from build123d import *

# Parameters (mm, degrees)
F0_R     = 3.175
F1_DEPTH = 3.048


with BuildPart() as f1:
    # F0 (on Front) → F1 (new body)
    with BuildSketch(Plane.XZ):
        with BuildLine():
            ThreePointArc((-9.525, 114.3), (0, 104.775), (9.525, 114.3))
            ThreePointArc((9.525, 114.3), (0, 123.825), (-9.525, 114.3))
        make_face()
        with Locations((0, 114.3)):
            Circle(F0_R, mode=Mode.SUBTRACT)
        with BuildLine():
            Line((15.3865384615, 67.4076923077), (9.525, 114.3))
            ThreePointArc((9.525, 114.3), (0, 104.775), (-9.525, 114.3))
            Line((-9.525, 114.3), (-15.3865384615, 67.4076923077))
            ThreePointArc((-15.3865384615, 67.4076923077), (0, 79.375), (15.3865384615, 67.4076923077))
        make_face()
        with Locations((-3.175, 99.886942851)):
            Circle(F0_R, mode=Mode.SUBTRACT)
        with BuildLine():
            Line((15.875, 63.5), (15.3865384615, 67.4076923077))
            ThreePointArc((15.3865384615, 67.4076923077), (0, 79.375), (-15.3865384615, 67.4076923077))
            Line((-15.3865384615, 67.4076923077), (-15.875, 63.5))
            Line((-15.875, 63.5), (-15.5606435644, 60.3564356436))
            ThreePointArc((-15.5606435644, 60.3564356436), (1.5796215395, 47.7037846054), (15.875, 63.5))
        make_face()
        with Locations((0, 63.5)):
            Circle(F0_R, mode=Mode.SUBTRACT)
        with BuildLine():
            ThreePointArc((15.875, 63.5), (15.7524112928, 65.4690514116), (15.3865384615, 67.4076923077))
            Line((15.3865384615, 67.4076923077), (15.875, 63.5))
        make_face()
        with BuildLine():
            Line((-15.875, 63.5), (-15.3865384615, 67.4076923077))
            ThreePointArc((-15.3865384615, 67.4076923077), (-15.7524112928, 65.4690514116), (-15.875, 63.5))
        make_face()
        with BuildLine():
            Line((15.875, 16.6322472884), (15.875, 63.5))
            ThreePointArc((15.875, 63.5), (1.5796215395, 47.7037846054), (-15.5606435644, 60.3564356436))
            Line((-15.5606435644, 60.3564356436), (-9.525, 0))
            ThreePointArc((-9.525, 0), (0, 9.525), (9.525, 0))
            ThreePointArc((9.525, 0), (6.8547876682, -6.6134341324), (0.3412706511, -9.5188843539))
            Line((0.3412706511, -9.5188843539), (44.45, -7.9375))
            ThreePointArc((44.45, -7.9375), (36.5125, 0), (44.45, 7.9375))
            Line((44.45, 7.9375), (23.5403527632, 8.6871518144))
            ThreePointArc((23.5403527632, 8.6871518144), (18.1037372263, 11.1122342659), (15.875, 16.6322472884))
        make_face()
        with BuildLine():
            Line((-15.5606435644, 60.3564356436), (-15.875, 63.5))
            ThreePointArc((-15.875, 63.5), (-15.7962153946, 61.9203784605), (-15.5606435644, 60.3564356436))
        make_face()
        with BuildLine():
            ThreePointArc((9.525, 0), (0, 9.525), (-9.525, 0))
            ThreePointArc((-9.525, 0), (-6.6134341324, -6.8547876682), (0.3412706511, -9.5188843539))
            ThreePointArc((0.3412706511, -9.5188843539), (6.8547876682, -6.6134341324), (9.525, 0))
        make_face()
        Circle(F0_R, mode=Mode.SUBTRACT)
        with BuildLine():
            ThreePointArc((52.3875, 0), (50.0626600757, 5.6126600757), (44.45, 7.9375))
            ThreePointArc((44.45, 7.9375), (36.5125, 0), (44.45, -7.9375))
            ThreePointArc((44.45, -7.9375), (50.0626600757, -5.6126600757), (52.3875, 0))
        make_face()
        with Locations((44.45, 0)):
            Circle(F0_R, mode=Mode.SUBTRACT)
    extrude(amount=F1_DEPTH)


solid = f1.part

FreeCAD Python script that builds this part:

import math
import FreeCAD as App
import Part
import Sketcher

V = App.Vector
Q = App.Units.Quantity

doc = App.newDocument("Part")
params = doc.addObject("Spreadsheet::Sheet", "Params")
for row, (alias, value) in enumerate([
    ("sketch1_diameter", "0.25 in"),
    ("sketch1_radius", "0.375 in"),
    ("sketch1_radius2", "0.625 in"),
    ("sketch1_radius3", "0.3125 in"),
    ("sketch1_radius4", "0.313 in"),
    ("pad1_length", "0.12 in"),
], start=1):
    params.set(f"A{row}", alias)
    params.set(f"B{row}", "=" + value)
    params.setAlias(f"B{row}", alias)

body = doc.addObject("PartDesign::Body", "Body")

# Sketch on XZ plane
sketch1 = body.newObject("Sketcher::SketchObject", "Sketch")
sketch1.AttachmentSupport = (doc.getObject("XZ_Plane"), [""])
sketch1.MapMode = "FlatFace"
sketch1.addGeometry([
    Part.ArcOfCircle(Part.Circle(V(0, 114.3, 0), V(0, 0, 1), 9.5), math.radians(0), math.radians(180)),  # 0
    Part.LineSegment(V(-9.5, 114.3, 0), V(-15.4, 67.4, 0)),  # 1
    Part.ArcOfCircle(Part.Circle(V(0, 63.5, 0), V(0, 0, 1), 15.9), math.radians(165.75), math.radians(180)),  # 2
    Part.ArcOfCircle(Part.Circle(V(0, 63.5, 0), V(0, 0, 1), 15.9), math.radians(180), math.radians(191.42)),  # 3
    Part.LineSegment(V(-15.6, 60.4, 0), V(-9.5, 0, 0)),  # 4
    Part.ArcOfCircle(Part.Circle(V(0, 0, 0), V(0, 0, 1), 9.5), math.radians(180), math.radians(272)),  # 5
    Part.LineSegment(V(0.3, -9.5, 0), V(44.5, -7.9, 0)),  # 6
    Part.ArcOfCircle(Part.Circle(V(44.5, 0, 0), V(0, 0, 1), 7.9), math.radians(-90), math.radians(0)),  # 7
    Part.ArcOfCircle(Part.Circle(V(44.5, 0, 0), V(0, 0, 1), 7.9), math.radians(0), math.radians(90)),  # 8
    Part.LineSegment(V(44.5, 7.9, 0), V(23.5, 8.7, 0)),  # 9
    Part.ArcOfCircle(Part.Circle(V(23.8, 16.6, 0), V(0, 0, 1), 8), math.radians(180), math.radians(268)),  # 10
    Part.LineSegment(V(15.9, 16.6, 0), V(15.9, 63.5, 0)),  # 11
    Part.ArcOfCircle(Part.Circle(V(0, 63.5, 0), V(0, 0, 1), 15.9), math.radians(0), math.radians(14.25)),  # 12
    Part.LineSegment(V(15.4, 67.4, 0), V(9.5, 114.3, 0)),  # 13
    Part.Circle(V(0, 0, 0), V(0, 0, 1), 3.2),  # 14
    Part.Circle(V(44.5, 0, 0), V(0, 0, 1), 3.2),  # 15
    Part.Circle(V(0, 63.5, 0), V(0, 0, 1), 3.2),  # 16
    Part.Circle(V(-3.2, 99.9, 0), V(0, 0, 1), 3.2),  # 17
    Part.Circle(V(0, 114.3, 0), V(0, 0, 1), 3.2),  # 18
], False)
sketch1.addConstraint([
    Sketcher.Constraint("Coincident", 0, 2, 1, 1),
    Sketcher.Constraint("Coincident", 1, 2, 2, 1),
    Sketcher.Constraint("Tangent", 2, 2, 3, 1),
    Sketcher.Constraint("Coincident", 3, 2, 4, 1),
    Sketcher.Constraint("Coincident", 4, 2, 5, 1),
    Sketcher.Constraint("Tangent", 5, 2, 6, 1),
    Sketcher.Constraint("Coincident", 6, 2, 7, 1),
    Sketcher.Constraint("Tangent", 7, 2, 8, 1),
    Sketcher.Constraint("Coincident", 8, 2, 9, 1),
    Sketcher.Constraint("Tangent", 9, 2, 10, 2),
    Sketcher.Constraint("Tangent", 10, 1, 11, 1),
    Sketcher.Constraint("Tangent", 11, 2, 12, 1),
    Sketcher.Constraint("Coincident", 12, 2, 13, 1),
    Sketcher.Constraint("Coincident", 13, 2, 0, 1),
    Sketcher.Constraint("Vertical", 11),
    Sketcher.Constraint("Coincident", 5, 3, -1, 1),
    Sketcher.Constraint("Coincident", 14, 3, -1, 1),
    Sketcher.Constraint("Coincident", 12, 3, 2, 3),
    Sketcher.Constraint("Coincident", 15, 3, 7, 3),
    Sketcher.Constraint("Coincident", 16, 3, 2, 3),
    Sketcher.Constraint("Coincident", 18, 3, 0, 3),
    Sketcher.Constraint("Equal", 2, 3),
    Sketcher.Constraint("Equal", 0, 5),
    Sketcher.Constraint("Equal", 7, 8),
    Sketcher.Constraint("Equal", 3, 12),
    Sketcher.Constraint("Equal", 14, 15),
    Sketcher.Constraint("Equal", 15, 16),
    Sketcher.Constraint("Equal", 16, 17),
    Sketcher.Constraint("Equal", 17, 18),
    Sketcher.Constraint("Symmetric", 2, 2, 11, 2, -2),
    Sketcher.Constraint("Symmetric", 0, 2, 13, 2, -2),
    Sketcher.Constraint("Symmetric", 6, 2, 8, 2, -1),
    Sketcher.Constraint("PointOnObject", 4, 2, -1),
    Sketcher.Constraint("PointOnObject", 7, 2, -1),
    Sketcher.Constraint("Horizontal", 18, 3, 0, 2),
    Sketcher.Constraint("Horizontal", 1, 2, 12, 2),
    Sketcher.Constraint("Vertical", 15, 3, 6, 2),
    Sketcher.Constraint("Diameter", 14, Q("0.25 in")),
    Sketcher.Constraint("Radius", 0, Q("0.375 in")),
    Sketcher.Constraint("Radius", 2, Q("0.625 in")),
    Sketcher.Constraint("Radius", 7, Q("0.3125 in")),
    Sketcher.Constraint("Radius", 10, Q("0.313 in")),
    Sketcher.Constraint("DistanceY", 2, 3, 0, 3, Q("2 in")),
    Sketcher.Constraint("DistanceY", -1, 1, 0, 3, Q("4.5 in")),
    Sketcher.Constraint("DistanceX", 17, 3, 13, 2, Q("0.5 in")),
    Sketcher.Constraint("DistanceX", -1, 1, 7, 3, Q("1.75 in")),
    Sketcher.Constraint("Distance", 9, Q("20.923081 mm")),
    Sketcher.Constraint("DistanceX", 1, 2, -1, 1, Q("15.386538 mm")),
    Sketcher.Constraint("DistanceY", 1, 2, 17, 3, Q("32.479251 mm")),
    Sketcher.Constraint("Distance", 4, Q("60.657467 mm")),
])
sketch1.setExpression("Constraints[37]", "Params.sketch1_diameter")
sketch1.setExpression("Constraints[38]", "Params.sketch1_radius")
sketch1.setExpression("Constraints[39]", "Params.sketch1_radius2")
sketch1.setExpression("Constraints[40]", "Params.sketch1_radius3")
sketch1.setExpression("Constraints[41]", "Params.sketch1_radius4")
pad1 = body.newObject("PartDesign::Pad", "Pad")
pad1.Profile = sketch1
pad1.setExpression("Length", "Params.pad1_length")

doc.recompute()
